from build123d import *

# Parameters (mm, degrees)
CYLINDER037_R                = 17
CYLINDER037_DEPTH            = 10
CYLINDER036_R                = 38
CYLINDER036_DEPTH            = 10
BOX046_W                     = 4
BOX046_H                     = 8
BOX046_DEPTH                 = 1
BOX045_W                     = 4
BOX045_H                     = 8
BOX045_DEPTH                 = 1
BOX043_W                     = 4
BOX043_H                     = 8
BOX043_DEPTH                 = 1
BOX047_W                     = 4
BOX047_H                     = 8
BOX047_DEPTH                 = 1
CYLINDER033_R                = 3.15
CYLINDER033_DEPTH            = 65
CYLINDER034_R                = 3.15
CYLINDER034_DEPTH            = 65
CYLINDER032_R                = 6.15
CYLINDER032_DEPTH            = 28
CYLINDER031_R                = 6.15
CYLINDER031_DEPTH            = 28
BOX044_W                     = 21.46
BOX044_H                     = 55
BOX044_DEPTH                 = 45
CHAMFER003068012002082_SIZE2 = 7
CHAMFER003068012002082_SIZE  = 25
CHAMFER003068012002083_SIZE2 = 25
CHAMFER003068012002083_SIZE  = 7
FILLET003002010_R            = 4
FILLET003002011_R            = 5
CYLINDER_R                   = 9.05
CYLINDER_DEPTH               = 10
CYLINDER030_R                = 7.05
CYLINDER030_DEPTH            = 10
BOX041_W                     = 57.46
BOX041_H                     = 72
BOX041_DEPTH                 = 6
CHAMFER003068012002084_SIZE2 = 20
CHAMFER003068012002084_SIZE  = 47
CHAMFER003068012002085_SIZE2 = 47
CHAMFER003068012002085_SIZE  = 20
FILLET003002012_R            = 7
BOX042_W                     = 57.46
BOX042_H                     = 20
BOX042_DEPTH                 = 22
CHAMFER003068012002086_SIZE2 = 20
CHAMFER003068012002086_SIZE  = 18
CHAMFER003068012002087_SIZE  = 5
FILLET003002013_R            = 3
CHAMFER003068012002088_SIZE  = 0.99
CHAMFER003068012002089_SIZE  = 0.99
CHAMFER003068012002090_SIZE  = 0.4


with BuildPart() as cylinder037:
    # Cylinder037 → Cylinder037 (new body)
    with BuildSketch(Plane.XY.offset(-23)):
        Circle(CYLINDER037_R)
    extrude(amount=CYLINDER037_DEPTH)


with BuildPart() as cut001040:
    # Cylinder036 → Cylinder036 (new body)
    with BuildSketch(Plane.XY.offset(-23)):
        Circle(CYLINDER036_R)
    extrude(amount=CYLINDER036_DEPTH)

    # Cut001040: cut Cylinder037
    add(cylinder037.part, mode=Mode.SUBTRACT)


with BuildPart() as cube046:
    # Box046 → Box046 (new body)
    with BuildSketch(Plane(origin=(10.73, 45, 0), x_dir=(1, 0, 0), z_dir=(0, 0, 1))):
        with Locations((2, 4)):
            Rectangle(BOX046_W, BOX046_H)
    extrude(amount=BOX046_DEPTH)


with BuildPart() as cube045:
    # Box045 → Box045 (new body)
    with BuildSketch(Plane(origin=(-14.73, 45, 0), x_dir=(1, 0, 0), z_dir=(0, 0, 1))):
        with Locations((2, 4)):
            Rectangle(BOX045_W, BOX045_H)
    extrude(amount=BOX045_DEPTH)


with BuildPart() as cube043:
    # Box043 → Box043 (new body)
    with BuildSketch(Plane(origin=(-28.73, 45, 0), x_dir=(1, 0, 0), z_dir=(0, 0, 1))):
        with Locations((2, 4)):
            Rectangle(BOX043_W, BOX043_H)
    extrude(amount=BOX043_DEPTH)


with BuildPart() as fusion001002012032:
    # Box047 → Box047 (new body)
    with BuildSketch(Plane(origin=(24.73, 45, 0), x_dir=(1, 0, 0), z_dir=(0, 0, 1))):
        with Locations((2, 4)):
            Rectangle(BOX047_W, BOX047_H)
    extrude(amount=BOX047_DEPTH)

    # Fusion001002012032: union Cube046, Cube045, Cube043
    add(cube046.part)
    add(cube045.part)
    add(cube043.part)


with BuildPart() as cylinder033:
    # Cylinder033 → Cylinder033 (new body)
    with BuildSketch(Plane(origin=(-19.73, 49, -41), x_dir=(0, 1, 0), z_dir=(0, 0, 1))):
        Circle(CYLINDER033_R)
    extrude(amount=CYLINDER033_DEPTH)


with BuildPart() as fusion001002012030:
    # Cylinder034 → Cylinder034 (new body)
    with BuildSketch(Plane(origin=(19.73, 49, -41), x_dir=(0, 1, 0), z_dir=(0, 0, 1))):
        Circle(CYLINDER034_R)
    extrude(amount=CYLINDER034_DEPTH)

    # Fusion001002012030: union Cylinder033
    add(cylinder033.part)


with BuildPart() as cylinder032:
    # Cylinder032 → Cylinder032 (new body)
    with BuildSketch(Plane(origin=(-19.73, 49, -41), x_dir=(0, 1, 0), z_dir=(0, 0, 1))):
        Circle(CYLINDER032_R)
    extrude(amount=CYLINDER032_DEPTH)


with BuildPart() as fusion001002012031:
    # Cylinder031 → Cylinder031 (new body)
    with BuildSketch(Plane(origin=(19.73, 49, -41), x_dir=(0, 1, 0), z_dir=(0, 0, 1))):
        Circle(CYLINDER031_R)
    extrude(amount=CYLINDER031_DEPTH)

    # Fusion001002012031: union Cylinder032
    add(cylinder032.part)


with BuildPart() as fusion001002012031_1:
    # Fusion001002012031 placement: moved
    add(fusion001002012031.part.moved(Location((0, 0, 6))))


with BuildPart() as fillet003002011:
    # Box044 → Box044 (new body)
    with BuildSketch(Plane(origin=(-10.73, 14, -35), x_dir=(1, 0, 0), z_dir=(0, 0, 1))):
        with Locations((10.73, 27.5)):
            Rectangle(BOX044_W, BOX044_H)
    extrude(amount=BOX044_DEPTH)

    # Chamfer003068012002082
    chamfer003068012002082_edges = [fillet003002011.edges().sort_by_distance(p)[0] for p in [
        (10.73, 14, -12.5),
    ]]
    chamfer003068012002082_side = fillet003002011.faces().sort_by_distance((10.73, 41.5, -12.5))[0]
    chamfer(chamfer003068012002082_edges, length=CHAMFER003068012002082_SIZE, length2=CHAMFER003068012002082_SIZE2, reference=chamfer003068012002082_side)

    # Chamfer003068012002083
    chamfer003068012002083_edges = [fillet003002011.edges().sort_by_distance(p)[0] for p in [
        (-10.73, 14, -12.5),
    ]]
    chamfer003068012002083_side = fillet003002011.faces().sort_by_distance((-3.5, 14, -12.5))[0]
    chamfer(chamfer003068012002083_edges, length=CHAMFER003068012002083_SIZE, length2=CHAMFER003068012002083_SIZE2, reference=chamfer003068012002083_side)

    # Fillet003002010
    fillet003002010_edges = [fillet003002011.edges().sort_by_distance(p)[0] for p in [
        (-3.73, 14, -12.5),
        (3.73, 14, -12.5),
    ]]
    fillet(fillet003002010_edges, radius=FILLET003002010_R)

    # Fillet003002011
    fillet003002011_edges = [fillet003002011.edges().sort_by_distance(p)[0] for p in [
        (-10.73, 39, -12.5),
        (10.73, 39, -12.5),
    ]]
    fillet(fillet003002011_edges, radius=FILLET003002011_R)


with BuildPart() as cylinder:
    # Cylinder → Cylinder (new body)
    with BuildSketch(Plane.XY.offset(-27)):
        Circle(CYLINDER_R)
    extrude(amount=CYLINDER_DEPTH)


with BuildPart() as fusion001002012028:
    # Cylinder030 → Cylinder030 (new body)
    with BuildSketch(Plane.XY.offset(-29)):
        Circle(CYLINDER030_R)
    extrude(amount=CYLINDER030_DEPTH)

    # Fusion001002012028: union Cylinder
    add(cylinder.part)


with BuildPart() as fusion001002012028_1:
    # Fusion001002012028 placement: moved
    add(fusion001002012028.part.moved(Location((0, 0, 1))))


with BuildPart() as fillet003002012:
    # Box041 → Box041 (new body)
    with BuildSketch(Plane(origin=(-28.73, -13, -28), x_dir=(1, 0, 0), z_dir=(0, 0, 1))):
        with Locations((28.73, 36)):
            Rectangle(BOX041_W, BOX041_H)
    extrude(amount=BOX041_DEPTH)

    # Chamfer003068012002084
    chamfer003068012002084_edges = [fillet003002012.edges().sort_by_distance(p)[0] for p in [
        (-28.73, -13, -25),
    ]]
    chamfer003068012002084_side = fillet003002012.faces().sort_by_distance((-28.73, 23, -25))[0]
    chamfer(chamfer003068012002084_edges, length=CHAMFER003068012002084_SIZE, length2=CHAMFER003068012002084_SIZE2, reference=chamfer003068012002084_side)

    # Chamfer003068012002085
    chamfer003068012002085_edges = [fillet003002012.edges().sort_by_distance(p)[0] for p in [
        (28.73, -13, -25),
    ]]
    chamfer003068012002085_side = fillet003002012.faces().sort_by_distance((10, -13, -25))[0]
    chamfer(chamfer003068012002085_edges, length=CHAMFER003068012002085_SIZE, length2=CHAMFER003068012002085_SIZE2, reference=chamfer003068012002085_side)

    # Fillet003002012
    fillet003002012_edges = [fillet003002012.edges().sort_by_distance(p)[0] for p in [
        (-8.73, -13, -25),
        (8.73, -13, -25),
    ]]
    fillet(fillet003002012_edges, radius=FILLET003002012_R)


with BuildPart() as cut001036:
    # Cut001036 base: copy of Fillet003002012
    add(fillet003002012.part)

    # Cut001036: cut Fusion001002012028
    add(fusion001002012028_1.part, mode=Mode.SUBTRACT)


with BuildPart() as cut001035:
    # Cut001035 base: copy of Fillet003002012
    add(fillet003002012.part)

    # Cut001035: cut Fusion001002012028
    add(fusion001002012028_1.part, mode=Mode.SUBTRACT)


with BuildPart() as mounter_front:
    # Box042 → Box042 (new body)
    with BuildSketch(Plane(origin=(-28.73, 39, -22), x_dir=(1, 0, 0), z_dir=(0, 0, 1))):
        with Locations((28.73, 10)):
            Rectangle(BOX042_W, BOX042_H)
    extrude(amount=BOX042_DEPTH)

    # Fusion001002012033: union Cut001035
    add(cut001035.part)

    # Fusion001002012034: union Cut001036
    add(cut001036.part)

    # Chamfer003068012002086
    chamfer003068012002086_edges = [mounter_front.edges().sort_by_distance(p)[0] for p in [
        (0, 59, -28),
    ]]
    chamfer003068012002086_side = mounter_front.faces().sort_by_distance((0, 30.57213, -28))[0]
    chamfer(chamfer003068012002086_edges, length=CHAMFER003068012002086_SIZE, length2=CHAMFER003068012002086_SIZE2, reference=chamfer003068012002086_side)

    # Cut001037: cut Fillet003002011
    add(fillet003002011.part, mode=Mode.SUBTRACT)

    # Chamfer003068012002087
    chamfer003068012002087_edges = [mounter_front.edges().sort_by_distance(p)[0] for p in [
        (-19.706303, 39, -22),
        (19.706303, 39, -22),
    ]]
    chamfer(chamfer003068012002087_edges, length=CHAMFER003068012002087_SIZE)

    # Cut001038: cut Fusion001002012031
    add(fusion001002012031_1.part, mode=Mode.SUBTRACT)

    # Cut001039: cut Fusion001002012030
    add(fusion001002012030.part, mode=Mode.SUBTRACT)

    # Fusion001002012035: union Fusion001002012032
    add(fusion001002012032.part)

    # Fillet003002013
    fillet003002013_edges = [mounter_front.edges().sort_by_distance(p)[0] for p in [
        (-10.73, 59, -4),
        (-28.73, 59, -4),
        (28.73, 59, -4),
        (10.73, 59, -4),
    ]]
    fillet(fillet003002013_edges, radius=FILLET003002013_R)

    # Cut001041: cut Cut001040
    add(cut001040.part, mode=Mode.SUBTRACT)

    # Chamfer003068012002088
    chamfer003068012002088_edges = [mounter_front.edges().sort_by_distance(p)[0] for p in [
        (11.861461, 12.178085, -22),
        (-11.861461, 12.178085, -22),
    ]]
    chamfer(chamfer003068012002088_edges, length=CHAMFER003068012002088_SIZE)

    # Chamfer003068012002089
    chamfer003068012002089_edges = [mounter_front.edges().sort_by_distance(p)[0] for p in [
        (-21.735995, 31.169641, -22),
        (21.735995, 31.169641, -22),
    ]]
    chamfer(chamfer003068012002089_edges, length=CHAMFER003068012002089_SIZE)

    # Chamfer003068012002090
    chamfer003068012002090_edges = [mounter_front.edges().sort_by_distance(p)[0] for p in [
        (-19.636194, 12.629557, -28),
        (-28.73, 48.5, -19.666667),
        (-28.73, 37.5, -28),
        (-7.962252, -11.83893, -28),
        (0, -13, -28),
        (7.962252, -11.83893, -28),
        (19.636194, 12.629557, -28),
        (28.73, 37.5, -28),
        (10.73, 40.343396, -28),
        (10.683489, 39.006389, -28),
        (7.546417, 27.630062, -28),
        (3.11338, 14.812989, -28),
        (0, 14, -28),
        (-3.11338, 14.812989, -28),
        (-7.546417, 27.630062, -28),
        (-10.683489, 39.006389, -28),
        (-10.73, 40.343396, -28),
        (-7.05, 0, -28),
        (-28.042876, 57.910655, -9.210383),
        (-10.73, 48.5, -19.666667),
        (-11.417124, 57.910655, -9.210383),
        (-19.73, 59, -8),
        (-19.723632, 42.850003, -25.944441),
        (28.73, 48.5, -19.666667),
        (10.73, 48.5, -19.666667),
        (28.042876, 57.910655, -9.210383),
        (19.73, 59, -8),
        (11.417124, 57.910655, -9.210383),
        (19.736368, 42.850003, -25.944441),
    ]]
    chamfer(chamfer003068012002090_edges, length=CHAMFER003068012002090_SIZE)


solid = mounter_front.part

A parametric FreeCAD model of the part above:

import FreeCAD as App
import Part
import Sketcher
Q = App.Units.Quantity


def edges_at(feature, points):
    """Names of the edges that pass closest to the given points."""
    edges = feature.Shape.Edges
    near = lambda p: min(range(len(edges)), key=lambda i: edges[i].distToShape(Part.Vertex(*p))[0])
    return sorted({f"Edge{near(p) + 1}" for p in points})

doc = App.newDocument("Part")
body = doc.addObject("PartDesign::Body", "Body")

sketch1 = doc.addObject("Sketcher::SketchObject", "Sketch")
body.addObject(sketch1)
sketch1.AttachmentSupport = (doc.XY_Plane, [""])
sketch1.MapMode = "FlatFace"
sketch1.AttachmentOffset = App.Placement(App.Vector(0, 0, -23), App.Rotation())
sketch1.addGeometry(Part.Circle(App.Vector(0, 0, 0), App.Vector(0, 0, 1), 17), False)
sketch1.addConstraint([
    Sketcher.Constraint("Coincident", 0, 3, -1, 1),
    Sketcher.Constraint("Diameter", 0, Q("34 mm")),
])
pad1 = doc.addObject("PartDesign::Pad", "Pad")
body.addObject(pad1)
pad1.Profile = sketch1
pad1.Length = 10
body2 = doc.addObject("PartDesign::Body", "Body001")

sketch2 = doc.addObject("Sketcher::SketchObject", "Sketch001")
body2.addObject(sketch2)
sketch2.AttachmentSupport = (doc.getObject("XY_Plane001"), [""])
sketch2.MapMode = "FlatFace"
sketch2.AttachmentOffset = App.Placement(App.Vector(0, 0, -23), App.Rotation())
sketch2.addGeometry(Part.Circle(App.Vector(0, 0, 0), App.Vector(0, 0, 1), 38), False)
sketch2.addConstraint([
    Sketcher.Constraint("Coincident", 0, 3, -1, 1),
    Sketcher.Constraint("Diameter", 0, Q("76 mm")),
])
pad2 = doc.addObject("PartDesign::Pad", "Pad001")
body2.addObject(pad2)
pad2.Profile = sketch2
pad2.Length = 10
doc.recompute()

boolean = doc.addObject("PartDesign::Boolean", "Boolean")
body2.addObject(boolean)
boolean.Type = "Cut"
boolean.addObjects([body])
body3 = doc.addObject("PartDesign::Body", "Body002")

sketch3 = doc.addObject("Sketcher::SketchObject", "Sketch002")
body3.addObject(sketch3)
sketch3.AttachmentSupport = (doc.getObject("XY_Plane002"), [""])
sketch3.MapMode = "FlatFace"
sketch3.addGeometry([
    Part.LineSegment(App.Vector(10.7, 53, 0), App.Vector(10.7, 45, 0)),
    Part.LineSegment(App.Vector(10.7, 45, 0), App.Vector(14.7, 45, 0)),
    Part.LineSegment(App.Vector(14.7, 45, 0), App.Vector(14.7, 53, 0)),
    Part.LineSegment(App.Vector(14.7, 53, 0), App.Vector(10.7, 53, 0)),
], False)
sketch3.addConstraint([
    Sketcher.Constraint("Coincident", 0, 2, 1, 1),
    Sketcher.Constraint("Coincident", 1, 2, 2, 1),
    Sketcher.Constraint("Coincident", 2, 2, 3, 1),
    Sketcher.Constraint("Coincident", 3, 2, 0, 1),
    Sketcher.Constraint("Vertical", 0),
    Sketcher.Constraint("Horizontal", 1),
    Sketcher.Constraint("Vertical", 2),
    Sketcher.Constraint("Horizontal", 3),
    Sketcher.Constraint("DistanceX", 1, 1, 1, 2, Q("4 mm")),
    Sketcher.Constraint("DistanceY", 0, 2, 0, 1, Q("8 mm")),
    Sketcher.Constraint("DistanceY", -1, 1, 0, 2, Q("45 mm")),
    Sketcher.Constraint("DistanceX", -1, 1, 0, 2, Q("10.73 mm")),
])
pad3 = doc.addObject("PartDesign::Pad", "Pad002")
body3.addObject(pad3)
pad3.Profile = sketch3
pad3.Length = 1
body4 = doc.addObject("PartDesign::Body", "Body003")

sketch4 = doc.addObject("Sketcher::SketchObject", "Sketch003")
body4.addObject(sketch4)
sketch4.AttachmentSupport = (doc.getObject("XY_Plane003"), [""])
sketch4.MapMode = "FlatFace"
sketch4.addGeometry([
    Part.LineSegment(App.Vector(-14.7, 53, 0), App.Vector(-14.7, 45, 0)),
    Part.LineSegment(App.Vector(-14.7, 45, 0), App.Vector(-10.7, 45, 0)),
    Part.LineSegment(App.Vector(-10.7, 45, 0), App.Vector(-10.7, 53, 0)),
    Part.LineSegment(App.Vector(-10.7, 53, 0), App.Vector(-14.7, 53, 0)),
], False)
sketch4.addConstraint([
    Sketcher.Constraint("Coincident", 0, 2, 1, 1),
    Sketcher.Constraint("Coincident", 1, 2, 2, 1),
    Sketcher.Constraint("Coincident", 2, 2, 3, 1),
    Sketcher.Constraint("Coincident", 3, 2, 0, 1),
    Sketcher.Constraint("Vertical", 0),
    Sketcher.Constraint("Horizontal", 1),
    Sketcher.Constraint("Vertical", 2),
    Sketcher.Constraint("Horizontal", 3),
    Sketcher.Constraint("DistanceX", 1, 1, 1, 2, Q("4 mm")),
    Sketcher.Constraint("DistanceY", 0, 2, 0, 1, Q("8 mm")),
    Sketcher.Constraint("DistanceY", -1, 1, 0, 2, Q("45 mm")),
    Sketcher.Constraint("DistanceX", 0, 2, -1, 1, Q("14.73 mm")),
])
pad4 = doc.addObject("PartDesign::Pad", "Pad003")
body4.addObject(pad4)
pad4.Profile = sketch4
pad4.Length = 1
body5 = doc.addObject("PartDesign::Body", "Body004")

sketch5 = doc.addObject("Sketcher::SketchObject", "Sketch004")
body5.addObject(sketch5)
sketch5.AttachmentSupport = (doc.getObject("XY_Plane004"), [""])
sketch5.MapMode = "FlatFace"
sketch5.addGeometry([
    Part.LineSegment(App.Vector(-28.7, 53, 0), App.Vector(-28.7, 45, 0)),
    Part.LineSegment(App.Vector(-28.7, 45, 0), App.Vector(-24.7, 45, 0)),
    Part.LineSegment(App.Vector(-24.7, 45, 0), App.Vector(-24.7, 53, 0)),
    Part.LineSegment(App.Vector(-24.7, 53, 0), App.Vector(-28.7, 53, 0)),
], False)
sketch5.addConstraint([
    Sketcher.Constraint("Coincident", 0, 2, 1, 1),
    Sketcher.Constraint("Coincident", 1, 2, 2, 1),
    Sketcher.Constraint("Coincident", 2, 2, 3, 1),
    Sketcher.Constraint("Coincident", 3, 2, 0, 1),
    Sketcher.Constraint("Vertical", 0),
    Sketcher.Constraint("Horizontal", 1),
    Sketcher.Constraint("Vertical", 2),
    Sketcher.Constraint("Horizontal", 3),
    Sketcher.Constraint("DistanceX", 1, 1, 1, 2, Q("4 mm")),
    Sketcher.Constraint("DistanceY", 0, 2, 0, 1, Q("8 mm")),
    Sketcher.Constraint("DistanceY", -1, 1, 0, 2, Q("45 mm")),
    Sketcher.Constraint("DistanceX", 0, 2, -1, 1, Q("28.73 mm")),
])
pad5 = doc.addObject("PartDesign::Pad", "Pad004")
body5.addObject(pad5)
pad5.Profile = sketch5
pad5.Length = 1
body6 = doc.addObject("PartDesign::Body", "Body005")
body6.AllowCompound = True

sketch6 = doc.addObject("Sketcher::SketchObject", "Sketch005")
body6.addObject(sketch6)
sketch6.AttachmentSupport = (doc.getObject("XY_Plane005"), [""])
sketch6.MapMode = "FlatFace"
sketch6.addGeometry([
    Part.LineSegment(App.Vector(24.7, 53, 0), App.Vector(24.7, 45, 0)),
    Part.LineSegment(App.Vector(24.7, 45, 0), App.Vector(28.7, 45, 0)),
    Part.LineSegment(App.Vector(28.7, 45, 0), App.Vector(28.7, 53, 0)),
    Part.LineSegment(App.Vector(28.7, 53, 0), App.Vector(24.7, 53, 0)),
], False)
sketch6.addConstraint([
    Sketcher.Constraint("Coincident", 0, 2, 1, 1),
    Sketcher.Constraint("Coincident", 1, 2, 2, 1),
    Sketcher.Constraint("Coincident", 2, 2, 3, 1),
    Sketcher.Constraint("Coincident", 3, 2, 0, 1),
    Sketcher.Constraint("Vertical", 0),
    Sketcher.Constraint("Horizontal", 1),
    Sketcher.Constraint("Vertical", 2),
    Sketcher.Constraint("Horizontal", 3),
    Sketcher.Constraint("DistanceX", 1, 1, 1, 2, Q("4 mm")),
    Sketcher.Constraint("DistanceY", 0, 2, 0, 1, Q("8 mm")),
    Sketcher.Constraint("DistanceY", -1, 1, 0, 2, Q("45 mm")),
    Sketcher.Constraint("DistanceX", -1, 1, 0, 2, Q("24.73 mm")),
])
pad6 = doc.addObject("PartDesign::Pad", "Pad005")
body6.addObject(pad6)
pad6.Profile = sketch6
pad6.Length = 1
doc.recompute()

boolean2 = doc.addObject("PartDesign::Boolean", "Boolean001")
body6.addObject(boolean2)
boolean2.Type = "Fuse"
boolean2.addObjects([body3])
doc.recompute()

boolean3 = doc.addObject("PartDesign::Boolean", "Boolean002")
body6.addObject(boolean3)
boolean3.Type = "Fuse"
boolean3.addObjects([body4])
doc.recompute()

boolean4 = doc.addObject("PartDesign::Boolean", "Boolean003")
body6.addObject(boolean4)
boolean4.Type = "Fuse"
boolean4.addObjects([body5])
body7 = doc.addObject("PartDesign::Body", "Body006")

sketch7 = doc.addObject("Sketcher::SketchObject", "Sketch006")
body7.addObject(sketch7)
sketch7.AttachmentSupport = (doc.getObject("XY_Plane006"), [""])
sketch7.MapMode = "FlatFace"
sketch7.AttachmentOffset = App.Placement(App.Vector(0, 0, -41), App.Rotation())
sketch7.addGeometry(Part.Circle(App.Vector(-19.7, 49, 0), App.Vector(0, 0, 1), 3.1), False)
sketch7.addConstraint([
    Sketcher.Constraint("Diameter", 0, Q("6.3 mm")),
    Sketcher.Constraint("DistanceY", -1, 1, 0, 3, Q("49 mm")),
    Sketcher.Constraint("DistanceX", 0, 3, -1, 1, Q("19.73 mm")),
])
pad7 = doc.addObject("PartDesign::Pad", "Pad006")
body7.addObject(pad7)
pad7.Profile = sketch7
pad7.Length = 65
body8 = doc.addObject("PartDesign::Body", "Body007")
body8.AllowCompound = True

sketch8 = doc.addObject("Sketcher::SketchObject", "Sketch007")
body8.addObject(sketch8)
sketch8.AttachmentSupport = (doc.getObject("XY_Plane007"), [""])
sketch8.MapMode = "FlatFace"
sketch8.AttachmentOffset = App.Placement(App.Vector(0, 0, -41), App.Rotation())
sketch8.addGeometry(Part.Circle(App.Vector(19.7, 49, 0), App.Vector(0, 0, 1), 3.1), False)
sketch8.addConstraint([
    Sketcher.Constraint("Diameter", 0, Q("6.3 mm")),
    Sketcher.Constraint("DistanceY", -1, 1, 0, 3, Q("49 mm")),
    Sketcher.Constraint("DistanceX", -1, 1, 0, 3, Q("19.73 mm")),
])
pad8 = doc.addObject("PartDesign::Pad", "Pad007")
body8.addObject(pad8)
pad8.Profile = sketch8
pad8.Length = 65
doc.recompute()

boolean5 = doc.addObject("PartDesign::Boolean", "Boolean004")
body8.addObject(boolean5)
boolean5.Type = "Fuse"
boolean5.addObjects([body7])
body9 = doc.addObject("PartDesign::Body", "Body008")

sketch9 = doc.addObject("Sketcher::SketchObject", "Sketch008")
body9.addObject(sketch9)
sketch9.AttachmentSupport = (doc.getObject("XY_Plane008"), [""])
sketch9.MapMode = "FlatFace"
sketch9.AttachmentOffset = App.Placement(App.Vector(0, 0, -41), App.Rotation())
sketch9.addGeometry(Part.Circle(App.Vector(-20, 49, 0), App.Vector(0, 0, 1), 6), False)
sketch9.addConstraint([
    Sketcher.Constraint("Diameter", 0, Q("12.3 mm")),
    Sketcher.Constraint("DistanceY", -1, 1, 0, 3, Q("49 mm")),
    Sketcher.Constraint("DistanceX", 0, 3, -1, 1, Q("19.73 mm")),
])
pad9 = doc.addObject("PartDesign::Pad", "Pad008")
body9.addObject(pad9)
pad9.Profile = sketch9
pad9.Length = 28
body10 = doc.addObject("PartDesign::Body", "Body009")
body10.AllowCompound = True

sketch10 = doc.addObject("Sketcher::SketchObject", "Sketch009")
body10.addObject(sketch10)
sketch10.AttachmentSupport = (doc.getObject("XY_Plane009"), [""])
sketch10.MapMode = "FlatFace"
sketch10.AttachmentOffset = App.Placement(App.Vector(0, 0, -41), App.Rotation())
sketch10.addGeometry(Part.Circle(App.Vector(20, 49, 0), App.Vector(0, 0, 1), 6), False)
sketch10.addConstraint([
    Sketcher.Constraint("Diameter", 0, Q("12.3 mm")),
    Sketcher.Constraint("DistanceY", -1, 1, 0, 3, Q("49 mm")),
    Sketcher.Constraint("DistanceX", -1, 1, 0, 3, Q("19.73 mm")),
])
pad10 = doc.addObject("PartDesign::Pad", "Pad009")
body10.addObject(pad10)
pad10.Profile = sketch10
pad10.Length = 28
doc.recompute()

boolean6 = doc.addObject("PartDesign::Boolean", "Boolean005")
body10.addObject(boolean6)
boolean6.Type = "Fuse"
boolean6.addObjects([body9])
body11 = doc.addObject("PartDesign::Body", "Body010")
body11.AllowCompound = True
doc.recompute()

body10.Placement = App.Placement(App.Vector(0, 0, 6), App.Rotation(App.Vector(0, 0, 1), 0))
boolean7 = doc.addObject("PartDesign::Boolean", "Boolean006")
body11.addObject(boolean7)
boolean7.Type = "Fuse"
boolean7.addObjects([body10])
body12 = doc.addObject("PartDesign::Body", "Body011")

sketch11 = doc.addObject("Sketcher::SketchObject", "Sketch010")
body12.addObject(sketch11)
sketch11.AttachmentSupport = (doc.getObject("XY_Plane011"), [""])
sketch11.MapMode = "FlatFace"
sketch11.AttachmentOffset = App.Placement(App.Vector(0, 0, -35), App.Rotation())
sketch11.addGeometry([
    Part.LineSegment(App.Vector(-11, 69, 0), App.Vector(-11, 14, 0)),
    Part.LineSegment(App.Vector(-11, 14, 0), App.Vector(11, 14, 0)),
    Part.LineSegment(App.Vector(11, 14, 0), App.Vector(11, 69, 0)),
    Part.LineSegment(App.Vector(11, 69, 0), App.Vector(-11, 69, 0)),
], False)
sketch11.addConstraint([
    Sketcher.Constraint("Coincident", 0, 2, 1, 1),
    Sketcher.Constraint("Coincident", 1, 2, 2, 1),
    Sketcher.Constraint("Coincident", 2, 2, 3, 1),
    Sketcher.Constraint("Coincident", 3, 2, 0, 1),
    Sketcher.Constraint("Vertical", 0),
    Sketcher.Constraint("Horizontal", 1),
    Sketcher.Constraint("Vertical", 2),
    Sketcher.Constraint("Horizontal", 3),
    Sketcher.Constraint("DistanceY", 0, 2, 0, 1, Q("55 mm")),
    Sketcher.Constraint("DistanceY", -1, 1, 0, 2, Q("14 mm")),
    Sketcher.Constraint("DistanceX", 1, 1, 1, 2, Q("21.46 mm")),
    Sketcher.Constraint("DistanceX", 0, 2, -1, 1, Q("10.73 mm")),
])
pad11 = doc.addObject("PartDesign::Pad", "Pad010")
body12.addObject(pad11)
pad11.Profile = sketch11
pad11.Length = 45
doc.recompute()

chamfer = doc.addObject("PartDesign::Chamfer", "Chamfer")
body12.addObject(chamfer)
chamfer.Base = (pad11, edges_at(pad11, [(10.73, 14, -12.5)]))
chamfer.ChamferType = "Two distances"
chamfer.Size = 25
chamfer.Size2 = 7
chamfer.FlipDirection = True
doc.recompute()

chamfer2 = doc.addObject("PartDesign::Chamfer", "Chamfer001")
body12.addObject(chamfer2)
chamfer2.Base = (chamfer, edges_at(chamfer, [(-10.73, 14, -12.5)]))
chamfer2.ChamferType = "Two distances"
chamfer2.Size = 7
chamfer2.Size2 = 25
doc.recompute()

fillet = doc.addObject("PartDesign::Fillet", "Fillet")
body12.addObject(fillet)
fillet.Base = (chamfer2, edges_at(chamfer2, [(-3.73, 14, -12.5), (3.73, 14, -12.5)]))
fillet.Radius = 4
doc.recompute()

fillet2 = doc.addObject("PartDesign::Fillet", "Fillet001")
body12.addObject(fillet2)
fillet2.Base = (fillet, edges_at(fillet, [(-10.73, 39, -12.5), (10.73, 39, -12.5)]))
fillet2.Radius = 5
body13 = doc.addObject("PartDesign::Body", "Body012")

sketch12 = doc.addObject("Sketcher::SketchObject", "Sketch011")
body13.addObject(sketch12)
sketch12.AttachmentSupport = (doc.getObject("XY_Plane012"), [""])
sketch12.MapMode = "FlatFace"
sketch12.AttachmentOffset = App.Placement(App.Vector(0, 0, -27), App.Rotation())
sketch12.addGeometry(Part.Circle(App.Vector(0, 0, 0), App.Vector(0, 0, 1), 9), False)
sketch12.addConstraint([
    Sketcher.Constraint("Coincident", 0, 3, -1, 1),
    Sketcher.Constraint("Diameter", 0, Q("18.1 mm")),
])
pad12 = doc.addObject("PartDesign::Pad", "Pad011")
body13.addObject(pad12)
pad12.Profile = sketch12
pad12.Length = 10
body14 = doc.addObject("PartDesign::Body", "Body013")

sketch13 = doc.addObject("Sketcher::SketchObject", "Sketch012")
body14.addObject(sketch13)
sketch13.AttachmentSupport = (doc.getObject("XY_Plane013"), [""])
sketch13.MapMode = "FlatFace"
sketch13.AttachmentOffset = App.Placement(App.Vector(0, 0, -29), App.Rotation())
sketch13.addGeometry(Part.Circle(App.Vector(0, 0, 0), App.Vector(0, 0, 1), 7), False)
sketch13.addConstraint([
    Sketcher.Constraint("Coincident", 0, 3, -1, 1),
    Sketcher.Constraint("Diameter", 0, Q("14.1 mm")),
])
pad13 = doc.addObject("PartDesign::Pad", "Pad012")
body14.addObject(pad13)
pad13.Profile = sketch13
pad13.Length = 10
doc.recompute()

boolean8 = doc.addObject("PartDesign::Boolean", "Boolean007")
body14.addObject(boolean8)
boolean8.Type = "Fuse"
boolean8.addObjects([body13])
body15 = doc.addObject("PartDesign::Body", "Body014")
doc.recompute()

body14.Placement = App.Placement(App.Vector(0, 0, 1), App.Rotation(App.Vector(0, 0, 1), 0))
boolean9 = doc.addObject("PartDesign::Boolean", "Boolean008")
body15.addObject(boolean9)
boolean9.Type = "Fuse"
boolean9.addObjects([body14])
body16 = doc.addObject("PartDesign::Body", "Body015")

sketch14 = doc.addObject("Sketcher::SketchObject", "Sketch013")
body16.addObject(sketch14)
sketch14.AttachmentSupport = (doc.getObject("XY_Plane015"), [""])
sketch14.MapMode = "FlatFace"
sketch14.AttachmentOffset = App.Placement(App.Vector(0, 0, -28), App.Rotation())
sketch14.addGeometry([
    Part.LineSegment(App.Vector(-29, 59, 0), App.Vector(-29, -13, 0)),
    Part.LineSegment(App.Vector(-29, -13, 0), App.Vector(29, -13, 0)),
    Part.LineSegment(App.Vector(29, -13, 0), App.Vector(29, 59, 0)),
    Part.LineSegment(App.Vector(29, 59, 0), App.Vector(-29, 59, 0)),
], False)
sketch14.addConstraint([
    Sketcher.Constraint("Coincident", 0, 2, 1, 1),
    Sketcher.Constraint("Coincident", 1, 2, 2, 1),
    Sketcher.Constraint("Coincident", 2, 2, 3, 1),
    Sketcher.Constraint("Coincident", 3, 2, 0, 1),
    Sketcher.Constraint("Vertical", 0),
    Sketcher.Constraint("Horizontal", 1),
    Sketcher.Constraint("Vertical", 2),
    Sketcher.Constraint("Horizontal", 3),
    Sketcher.Constraint("DistanceY", 0, 2, 0, 1, Q("72 mm")),
    Sketcher.Constraint("DistanceY", 0, 2, -1, 1, Q("13 mm")),
    Sketcher.Constraint("DistanceX", 1, 1, 1, 2, Q("57.46 mm")),
    Sketcher.Constraint("DistanceX", 0, 2, -1, 1, Q("28.73 mm")),
])
pad14 = doc.addObject("PartDesign::Pad", "Pad013")
body16.addObject(pad14)
pad14.Profile = sketch14
pad14.Length = 6
doc.recompute()

chamfer3 = doc.addObject("PartDesign::Chamfer", "Chamfer002")
body16.addObject(chamfer3)
chamfer3.Base = (pad14, edges_at(pad14, [(-28.73, -13, -25)]))
chamfer3.ChamferType = "Two distances"
chamfer3.Size = 47
chamfer3.Size2 = 20
doc.recompute()

chamfer4 = doc.addObject("PartDesign::Chamfer", "Chamfer003")
body16.addObject(chamfer4)
chamfer4.Base = (chamfer3, edges_at(chamfer3, [(28.73, -13, -25)]))
chamfer4.ChamferType = "Two distances"
chamfer4.Size = 20
chamfer4.Size2 = 47
doc.recompute()

fillet3 = doc.addObject("PartDesign::Fillet", "Fillet002")
body16.addObject(fillet3)
fillet3.Base = (chamfer4, edges_at(chamfer4, [(-8.73, -13, -25), (8.73, -13, -25)]))
fillet3.Radius = 7
body17 = doc.addObject("PartDesign::Body", "Body016")
doc.recompute()

body17.BaseFeature = body16
doc.recompute()

body18 = doc.addObject("PartDesign::Body", "Body017")
body18.BaseFeature = body15
boolean10 = doc.addObject("PartDesign::Boolean", "Boolean009")
body17.addObject(boolean10)
boolean10.Type = "Cut"
boolean10.addObjects([body18])
doc.recompute()

boolean11 = doc.addObject("PartDesign::Boolean", "Boolean010")
body16.addObject(boolean11)
boolean11.Type = "Cut"
boolean11.addObjects([body15])
body19 = doc.addObject("PartDesign::Body", "Body018")

sketch15 = doc.addObject("Sketcher::SketchObject", "Sketch014")
body19.addObject(sketch15)
sketch15.AttachmentSupport = (doc.getObject("XY_Plane018"), [""])
sketch15.MapMode = "FlatFace"
sketch15.AttachmentOffset = App.Placement(App.Vector(0, 0, -22), App.Rotation())
sketch15.addGeometry([
    Part.LineSegment(App.Vector(-29, 59, 0), App.Vector(-29, 39, 0)),
    Part.LineSegment(App.Vector(-29, 39, 0), App.Vector(29, 39, 0)),
    Part.LineSegment(App.Vector(29, 39, 0), App.Vector(29, 59, 0)),
    Part.LineSegment(App.Vector(29, 59, 0), App.Vector(-29, 59, 0)),
], False)
sketch15.addConstraint([
    Sketcher.Constraint("Coincident", 0, 2, 1, 1),
    Sketcher.Constraint("Coincident", 1, 2, 2, 1),
    Sketcher.Constraint("Coincident", 2, 2, 3, 1),
    Sketcher.Constraint("Coincident", 3, 2, 0, 1),
    Sketcher.Constraint("Vertical", 0),
    Sketcher.Constraint("Horizontal", 1),
    Sketcher.Constraint("Vertical", 2),
    Sketcher.Constraint("Horizontal", 3),
    Sketcher.Constraint("DistanceY", 0, 2, 0, 1, Q("20 mm")),
    Sketcher.Constraint("DistanceY", -1, 1, 0, 2, Q("39 mm")),
    Sketcher.Constraint("DistanceX", 1, 1, 1, 2, Q("57.46 mm")),
    Sketcher.Constraint("DistanceX", 0, 2, -1, 1, Q("28.73 mm")),
])
pad15 = doc.addObject("PartDesign::Pad", "Pad014")
body19.addObject(pad15)
pad15.Profile = sketch15
pad15.Length = 22
doc.recompute()

boolean12 = doc.addObject("PartDesign::Boolean", "Boolean011")
body19.addObject(boolean12)
boolean12.Type = "Fuse"
boolean12.addObjects([body16])
doc.recompute()

boolean13 = doc.addObject("PartDesign::Boolean", "Boolean012")
body19.addObject(boolean13)
boolean13.Type = "Fuse"
boolean13.addObjects([body17])
doc.recompute()

chamfer5 = doc.addObject("PartDesign::Chamfer", "Chamfer004")
body19.addObject(chamfer5)
chamfer5.Base = (boolean13, edges_at(boolean13, [(0, 59, -28)]))
chamfer5.ChamferType = "Two distances"
chamfer5.Size = 18
chamfer5.Size2 = 20
doc.recompute()

boolean14 = doc.addObject("PartDesign::Boolean", "Boolean013")
body19.addObject(boolean14)
boolean14.Type = "Cut"
boolean14.addObjects([body12])
doc.recompute()

chamfer6 = doc.addObject("PartDesign::Chamfer", "Chamfer005")
body19.addObject(chamfer6)
chamfer6.Base = (boolean14, edges_at(boolean14, [(-19.706, 39, -22), (19.706, 39, -22)]))
chamfer6.Size = 5
doc.recompute()

boolean15 = doc.addObject("PartDesign::Boolean", "Boolean014")
body19.addObject(boolean15)
boolean15.Type = "Cut"
boolean15.addObjects([body11])
doc.recompute()

boolean16 = doc.addObject("PartDesign::Boolean", "Boolean015")
body19.addObject(boolean16)
boolean16.Type = "Cut"
boolean16.addObjects([body8])
doc.recompute()

boolean17 = doc.addObject("PartDesign::Boolean", "Boolean016")
body19.addObject(boolean17)
boolean17.Type = "Fuse"
boolean17.addObjects([body6])
doc.recompute()

fillet4 = doc.addObject("PartDesign::Fillet", "Fillet003")
body19.addObject(fillet4)
fillet4.Base = (boolean17, edges_at(boolean17, [
    (-10.73, 59, -4),
    (-28.73, 59, -4),
    (28.73, 59, -4),
    (10.73, 59, -4),
]))
fillet4.Radius = 3
doc.recompute()

boolean18 = doc.addObject("PartDesign::Boolean", "Boolean017")
body19.addObject(boolean18)
boolean18.Type = "Cut"
boolean18.addObjects([body2])
doc.recompute()

chamfer7 = doc.addObject("PartDesign::Chamfer", "Chamfer006")
body19.addObject(chamfer7)
chamfer7.Base = (boolean18, edges_at(boolean18, [(11.861, 12.178, -22), (-11.861, 12.178, -22)]))
chamfer7.Size = 0.99
doc.recompute()

chamfer8 = doc.addObject("PartDesign::Chamfer", "Chamfer007")
body19.addObject(chamfer8)
chamfer8.Base = (chamfer7, edges_at(chamfer7, [(-21.736, 31.17, -22), (21.736, 31.17, -22)]))
chamfer8.Size = 0.99
doc.recompute()

chamfer9 = doc.addObject("PartDesign::Chamfer", "Chamfer008")
body19.addObject(chamfer9)
chamfer9.Base = (chamfer8, edges_at(chamfer8, [
    (-19.636, 12.63, -28),
    (-28.73, 48.5, -19.667),
    (-28.73, 37.5, -28),
    (-7.962, -11.839, -28),
    (0, -13, -28),
    (7.962, -11.839, -28),
    (19.636, 12.63, -28),
    (28.73, 37.5, -28),
    (10.73, 40.343, -28),
    (10.683, 39.006, -28),
    (7.546, 27.63, -28),
    (3.113, 14.813, -28),
    (0, 14, -28),
    (-3.113, 14.813, -28),
    (-7.546, 27.63, -28),
    (-10.683, 39.006, -28),
    (-10.73, 40.343, -28),
    (-7.05, 0, -28),
    (-28.043, 57.911, -9.21),
    (-10.73, 48.5, -19.667),
    (-11.417, 57.911, -9.21),
    (-19.73, 59, -8),
    (-19.724, 42.85, -25.944),
    (28.73, 48.5, -19.667),
    (10.73, 48.5, -19.667),
    (28.043, 57.911, -9.21),
    (19.73, 59, -8),
    (11.417, 57.911, -9.21),
    (19.736, 42.85, -25.944),
]))
chamfer9.Size = 0.4

doc.recompute()
